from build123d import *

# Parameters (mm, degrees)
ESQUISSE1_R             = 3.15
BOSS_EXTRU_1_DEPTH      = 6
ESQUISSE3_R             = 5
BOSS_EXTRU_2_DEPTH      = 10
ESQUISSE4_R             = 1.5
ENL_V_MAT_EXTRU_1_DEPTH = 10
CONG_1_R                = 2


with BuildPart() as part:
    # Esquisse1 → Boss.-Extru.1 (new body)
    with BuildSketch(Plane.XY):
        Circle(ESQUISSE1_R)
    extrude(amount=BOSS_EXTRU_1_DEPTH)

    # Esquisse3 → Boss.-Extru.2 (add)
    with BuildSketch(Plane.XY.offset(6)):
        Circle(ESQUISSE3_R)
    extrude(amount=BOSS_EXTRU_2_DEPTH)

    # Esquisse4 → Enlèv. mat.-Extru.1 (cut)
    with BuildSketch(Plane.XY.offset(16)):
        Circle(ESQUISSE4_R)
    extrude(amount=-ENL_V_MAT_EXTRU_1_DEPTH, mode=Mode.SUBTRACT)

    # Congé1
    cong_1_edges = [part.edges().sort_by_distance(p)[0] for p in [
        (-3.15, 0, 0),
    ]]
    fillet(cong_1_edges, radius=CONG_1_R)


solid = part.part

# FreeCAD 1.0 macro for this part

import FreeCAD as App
import Part
import Sketcher


def edges_at(feature, points):
    """Names of the edges that pass closest to the given points."""
    edges = feature.Shape.Edges
    near = lambda p: min(range(len(edges)), key=lambda i: edges[i].distToShape(Part.Vertex(*p))[0])
    return sorted({f"Edge{near(p) + 1}" for p in points})

doc = App.newDocument("Part")
body = doc.addObject("PartDesign::Body", "Body")

sketch1 = doc.addObject("Sketcher::SketchObject", "Sketch")
body.addObject(sketch1)
sketch1.AttachmentSupport = (doc.XY_Plane, [""])
sketch1.MapMode = "FlatFace"
sketch1.addGeometry(Part.Circle(App.Vector(0, 0, 0), App.Vector(0, 0, 1), 3.15), False)
sketch1.addConstraint([
    Sketcher.Constraint("Coincident", 0, 3, -1, 1),
    Sketcher.Constraint("Diameter", 0, 6.3),
])
pad1 = doc.addObject("PartDesign::Pad", "Pad")
body.addObject(pad1)
pad1.Profile = sketch1
pad1.Length = 6

sketch2 = doc.addObject("Sketcher::SketchObject", "Sketch001")
body.addObject(sketch2)
sketch2.AttachmentSupport = (doc.XY_Plane, [""])
sketch2.MapMode = "FlatFace"
sketch2.AttachmentOffset = App.Placement(App.Vector(0, 0, 6), App.Rotation())
sketch2.addGeometry(Part.Circle(App.Vector(0, 0, 0), App.Vector(0, 0, 1), 5), False)
sketch2.addConstraint([
    Sketcher.Constraint("Coincident", 0, 3, -1, 1),
    Sketcher.Constraint("Diameter", 0, 10.0),
])
pad2 = doc.addObject("PartDesign::Pad", "Pad001")
body.addObject(pad2)
pad2.Profile = sketch2
pad2.Length = 10

sketch3 = doc.addObject("Sketcher::SketchObject", "Sketch002")
body.addObject(sketch3)
sketch3.AttachmentSupport = (doc.XY_Plane, [""])
sketch3.MapMode = "FlatFace"
sketch3.AttachmentOffset = App.Placement(App.Vector(0, 0, 16), App.Rotation())
sketch3.addGeometry(Part.Circle(App.Vector(0, 0, 0), App.Vector(0, 0, 1), 1.5), False)
sketch3.addConstraint([
    Sketcher.Constraint("Coincident", 0, 3, -1, 1),
    Sketcher.Constraint("Diameter", 0, 3.0),
])
pocket1 = doc.addObject("PartDesign::Pocket", "Pocket")
body.addObject(pocket1)
pocket1.Profile = sketch3
pocket1.Length = 10
doc.recompute()

fillet = doc.addObject("PartDesign::Fillet", "Fillet")
body.addObject(fillet)
fillet.Base = (pocket1, edges_at(pocket1, [(-3.15, 0, 0)]))
fillet.Radius = 2

doc.recompute()
